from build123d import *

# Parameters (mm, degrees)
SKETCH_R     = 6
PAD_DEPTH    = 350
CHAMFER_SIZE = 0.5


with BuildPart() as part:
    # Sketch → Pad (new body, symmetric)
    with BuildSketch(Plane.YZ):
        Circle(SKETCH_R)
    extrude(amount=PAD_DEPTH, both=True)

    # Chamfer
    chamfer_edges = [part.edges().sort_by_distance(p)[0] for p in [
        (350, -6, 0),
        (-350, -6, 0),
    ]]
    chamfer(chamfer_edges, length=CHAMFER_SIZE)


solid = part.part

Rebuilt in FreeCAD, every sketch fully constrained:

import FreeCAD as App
import Part
import Sketcher

V = App.Vector
Q = App.Units.Quantity


def edges_at(feature, points):
    """Names of the edges that pass closest to the given points."""
    edges = feature.Shape.Edges
    near = lambda p: min(range(len(edges)), key=lambda i: edges[i].distToShape(Part.Vertex(*p))[0])
    return sorted({f"Edge{near(p) + 1}" for p in points})

doc = App.newDocument("Part")
params = doc.addObject("Spreadsheet::Sheet", "Params")
for row, (alias, value) in enumerate([
    ("sketch1_diameter", "12 mm"),
    ("pad1_length", "700 mm"),
    ("chamfer_size", "0.5 mm"),
], start=1):
    params.set(f"A{row}", alias)
    params.set(f"B{row}", "=" + value)
    params.setAlias(f"B{row}", alias)

body = doc.addObject("PartDesign::Body", "Body")

sketch1 = doc.addObject("Sketcher::SketchObject", "Sketch")
body.addObject(sketch1)
sketch1.AttachmentSupport = (doc.YZ_Plane, [""])
sketch1.MapMode = "FlatFace"
sketch1.addGeometry(Part.Circle(V(0, 0, 0), V(0, 0, 1), 6), False)
sketch1.addConstraint(Sketcher.Constraint("Coincident", 0, 3, -1, 1))
sketch1.addConstraint(Sketcher.Constraint("Diameter", 0, Q("12 mm")))
sketch1.setExpression("Constraints[1]", "Params.sketch1_diameter")
pad1 = doc.addObject("PartDesign::Pad", "Pad")
body.addObject(pad1)
pad1.Profile = sketch1
pad1.setExpression("Length", "Params.pad1_length")
pad1.Midplane = True
doc.recompute()

chamfer = doc.addObject("PartDesign::Chamfer", "Chamfer")
body.addObject(chamfer)
chamfer.Base = (pad1, edges_at(pad1, [(350, -6, 0), (-350, -6, 0)]))
chamfer.setExpression("Size", "Params.chamfer_size")

doc.recompute()
